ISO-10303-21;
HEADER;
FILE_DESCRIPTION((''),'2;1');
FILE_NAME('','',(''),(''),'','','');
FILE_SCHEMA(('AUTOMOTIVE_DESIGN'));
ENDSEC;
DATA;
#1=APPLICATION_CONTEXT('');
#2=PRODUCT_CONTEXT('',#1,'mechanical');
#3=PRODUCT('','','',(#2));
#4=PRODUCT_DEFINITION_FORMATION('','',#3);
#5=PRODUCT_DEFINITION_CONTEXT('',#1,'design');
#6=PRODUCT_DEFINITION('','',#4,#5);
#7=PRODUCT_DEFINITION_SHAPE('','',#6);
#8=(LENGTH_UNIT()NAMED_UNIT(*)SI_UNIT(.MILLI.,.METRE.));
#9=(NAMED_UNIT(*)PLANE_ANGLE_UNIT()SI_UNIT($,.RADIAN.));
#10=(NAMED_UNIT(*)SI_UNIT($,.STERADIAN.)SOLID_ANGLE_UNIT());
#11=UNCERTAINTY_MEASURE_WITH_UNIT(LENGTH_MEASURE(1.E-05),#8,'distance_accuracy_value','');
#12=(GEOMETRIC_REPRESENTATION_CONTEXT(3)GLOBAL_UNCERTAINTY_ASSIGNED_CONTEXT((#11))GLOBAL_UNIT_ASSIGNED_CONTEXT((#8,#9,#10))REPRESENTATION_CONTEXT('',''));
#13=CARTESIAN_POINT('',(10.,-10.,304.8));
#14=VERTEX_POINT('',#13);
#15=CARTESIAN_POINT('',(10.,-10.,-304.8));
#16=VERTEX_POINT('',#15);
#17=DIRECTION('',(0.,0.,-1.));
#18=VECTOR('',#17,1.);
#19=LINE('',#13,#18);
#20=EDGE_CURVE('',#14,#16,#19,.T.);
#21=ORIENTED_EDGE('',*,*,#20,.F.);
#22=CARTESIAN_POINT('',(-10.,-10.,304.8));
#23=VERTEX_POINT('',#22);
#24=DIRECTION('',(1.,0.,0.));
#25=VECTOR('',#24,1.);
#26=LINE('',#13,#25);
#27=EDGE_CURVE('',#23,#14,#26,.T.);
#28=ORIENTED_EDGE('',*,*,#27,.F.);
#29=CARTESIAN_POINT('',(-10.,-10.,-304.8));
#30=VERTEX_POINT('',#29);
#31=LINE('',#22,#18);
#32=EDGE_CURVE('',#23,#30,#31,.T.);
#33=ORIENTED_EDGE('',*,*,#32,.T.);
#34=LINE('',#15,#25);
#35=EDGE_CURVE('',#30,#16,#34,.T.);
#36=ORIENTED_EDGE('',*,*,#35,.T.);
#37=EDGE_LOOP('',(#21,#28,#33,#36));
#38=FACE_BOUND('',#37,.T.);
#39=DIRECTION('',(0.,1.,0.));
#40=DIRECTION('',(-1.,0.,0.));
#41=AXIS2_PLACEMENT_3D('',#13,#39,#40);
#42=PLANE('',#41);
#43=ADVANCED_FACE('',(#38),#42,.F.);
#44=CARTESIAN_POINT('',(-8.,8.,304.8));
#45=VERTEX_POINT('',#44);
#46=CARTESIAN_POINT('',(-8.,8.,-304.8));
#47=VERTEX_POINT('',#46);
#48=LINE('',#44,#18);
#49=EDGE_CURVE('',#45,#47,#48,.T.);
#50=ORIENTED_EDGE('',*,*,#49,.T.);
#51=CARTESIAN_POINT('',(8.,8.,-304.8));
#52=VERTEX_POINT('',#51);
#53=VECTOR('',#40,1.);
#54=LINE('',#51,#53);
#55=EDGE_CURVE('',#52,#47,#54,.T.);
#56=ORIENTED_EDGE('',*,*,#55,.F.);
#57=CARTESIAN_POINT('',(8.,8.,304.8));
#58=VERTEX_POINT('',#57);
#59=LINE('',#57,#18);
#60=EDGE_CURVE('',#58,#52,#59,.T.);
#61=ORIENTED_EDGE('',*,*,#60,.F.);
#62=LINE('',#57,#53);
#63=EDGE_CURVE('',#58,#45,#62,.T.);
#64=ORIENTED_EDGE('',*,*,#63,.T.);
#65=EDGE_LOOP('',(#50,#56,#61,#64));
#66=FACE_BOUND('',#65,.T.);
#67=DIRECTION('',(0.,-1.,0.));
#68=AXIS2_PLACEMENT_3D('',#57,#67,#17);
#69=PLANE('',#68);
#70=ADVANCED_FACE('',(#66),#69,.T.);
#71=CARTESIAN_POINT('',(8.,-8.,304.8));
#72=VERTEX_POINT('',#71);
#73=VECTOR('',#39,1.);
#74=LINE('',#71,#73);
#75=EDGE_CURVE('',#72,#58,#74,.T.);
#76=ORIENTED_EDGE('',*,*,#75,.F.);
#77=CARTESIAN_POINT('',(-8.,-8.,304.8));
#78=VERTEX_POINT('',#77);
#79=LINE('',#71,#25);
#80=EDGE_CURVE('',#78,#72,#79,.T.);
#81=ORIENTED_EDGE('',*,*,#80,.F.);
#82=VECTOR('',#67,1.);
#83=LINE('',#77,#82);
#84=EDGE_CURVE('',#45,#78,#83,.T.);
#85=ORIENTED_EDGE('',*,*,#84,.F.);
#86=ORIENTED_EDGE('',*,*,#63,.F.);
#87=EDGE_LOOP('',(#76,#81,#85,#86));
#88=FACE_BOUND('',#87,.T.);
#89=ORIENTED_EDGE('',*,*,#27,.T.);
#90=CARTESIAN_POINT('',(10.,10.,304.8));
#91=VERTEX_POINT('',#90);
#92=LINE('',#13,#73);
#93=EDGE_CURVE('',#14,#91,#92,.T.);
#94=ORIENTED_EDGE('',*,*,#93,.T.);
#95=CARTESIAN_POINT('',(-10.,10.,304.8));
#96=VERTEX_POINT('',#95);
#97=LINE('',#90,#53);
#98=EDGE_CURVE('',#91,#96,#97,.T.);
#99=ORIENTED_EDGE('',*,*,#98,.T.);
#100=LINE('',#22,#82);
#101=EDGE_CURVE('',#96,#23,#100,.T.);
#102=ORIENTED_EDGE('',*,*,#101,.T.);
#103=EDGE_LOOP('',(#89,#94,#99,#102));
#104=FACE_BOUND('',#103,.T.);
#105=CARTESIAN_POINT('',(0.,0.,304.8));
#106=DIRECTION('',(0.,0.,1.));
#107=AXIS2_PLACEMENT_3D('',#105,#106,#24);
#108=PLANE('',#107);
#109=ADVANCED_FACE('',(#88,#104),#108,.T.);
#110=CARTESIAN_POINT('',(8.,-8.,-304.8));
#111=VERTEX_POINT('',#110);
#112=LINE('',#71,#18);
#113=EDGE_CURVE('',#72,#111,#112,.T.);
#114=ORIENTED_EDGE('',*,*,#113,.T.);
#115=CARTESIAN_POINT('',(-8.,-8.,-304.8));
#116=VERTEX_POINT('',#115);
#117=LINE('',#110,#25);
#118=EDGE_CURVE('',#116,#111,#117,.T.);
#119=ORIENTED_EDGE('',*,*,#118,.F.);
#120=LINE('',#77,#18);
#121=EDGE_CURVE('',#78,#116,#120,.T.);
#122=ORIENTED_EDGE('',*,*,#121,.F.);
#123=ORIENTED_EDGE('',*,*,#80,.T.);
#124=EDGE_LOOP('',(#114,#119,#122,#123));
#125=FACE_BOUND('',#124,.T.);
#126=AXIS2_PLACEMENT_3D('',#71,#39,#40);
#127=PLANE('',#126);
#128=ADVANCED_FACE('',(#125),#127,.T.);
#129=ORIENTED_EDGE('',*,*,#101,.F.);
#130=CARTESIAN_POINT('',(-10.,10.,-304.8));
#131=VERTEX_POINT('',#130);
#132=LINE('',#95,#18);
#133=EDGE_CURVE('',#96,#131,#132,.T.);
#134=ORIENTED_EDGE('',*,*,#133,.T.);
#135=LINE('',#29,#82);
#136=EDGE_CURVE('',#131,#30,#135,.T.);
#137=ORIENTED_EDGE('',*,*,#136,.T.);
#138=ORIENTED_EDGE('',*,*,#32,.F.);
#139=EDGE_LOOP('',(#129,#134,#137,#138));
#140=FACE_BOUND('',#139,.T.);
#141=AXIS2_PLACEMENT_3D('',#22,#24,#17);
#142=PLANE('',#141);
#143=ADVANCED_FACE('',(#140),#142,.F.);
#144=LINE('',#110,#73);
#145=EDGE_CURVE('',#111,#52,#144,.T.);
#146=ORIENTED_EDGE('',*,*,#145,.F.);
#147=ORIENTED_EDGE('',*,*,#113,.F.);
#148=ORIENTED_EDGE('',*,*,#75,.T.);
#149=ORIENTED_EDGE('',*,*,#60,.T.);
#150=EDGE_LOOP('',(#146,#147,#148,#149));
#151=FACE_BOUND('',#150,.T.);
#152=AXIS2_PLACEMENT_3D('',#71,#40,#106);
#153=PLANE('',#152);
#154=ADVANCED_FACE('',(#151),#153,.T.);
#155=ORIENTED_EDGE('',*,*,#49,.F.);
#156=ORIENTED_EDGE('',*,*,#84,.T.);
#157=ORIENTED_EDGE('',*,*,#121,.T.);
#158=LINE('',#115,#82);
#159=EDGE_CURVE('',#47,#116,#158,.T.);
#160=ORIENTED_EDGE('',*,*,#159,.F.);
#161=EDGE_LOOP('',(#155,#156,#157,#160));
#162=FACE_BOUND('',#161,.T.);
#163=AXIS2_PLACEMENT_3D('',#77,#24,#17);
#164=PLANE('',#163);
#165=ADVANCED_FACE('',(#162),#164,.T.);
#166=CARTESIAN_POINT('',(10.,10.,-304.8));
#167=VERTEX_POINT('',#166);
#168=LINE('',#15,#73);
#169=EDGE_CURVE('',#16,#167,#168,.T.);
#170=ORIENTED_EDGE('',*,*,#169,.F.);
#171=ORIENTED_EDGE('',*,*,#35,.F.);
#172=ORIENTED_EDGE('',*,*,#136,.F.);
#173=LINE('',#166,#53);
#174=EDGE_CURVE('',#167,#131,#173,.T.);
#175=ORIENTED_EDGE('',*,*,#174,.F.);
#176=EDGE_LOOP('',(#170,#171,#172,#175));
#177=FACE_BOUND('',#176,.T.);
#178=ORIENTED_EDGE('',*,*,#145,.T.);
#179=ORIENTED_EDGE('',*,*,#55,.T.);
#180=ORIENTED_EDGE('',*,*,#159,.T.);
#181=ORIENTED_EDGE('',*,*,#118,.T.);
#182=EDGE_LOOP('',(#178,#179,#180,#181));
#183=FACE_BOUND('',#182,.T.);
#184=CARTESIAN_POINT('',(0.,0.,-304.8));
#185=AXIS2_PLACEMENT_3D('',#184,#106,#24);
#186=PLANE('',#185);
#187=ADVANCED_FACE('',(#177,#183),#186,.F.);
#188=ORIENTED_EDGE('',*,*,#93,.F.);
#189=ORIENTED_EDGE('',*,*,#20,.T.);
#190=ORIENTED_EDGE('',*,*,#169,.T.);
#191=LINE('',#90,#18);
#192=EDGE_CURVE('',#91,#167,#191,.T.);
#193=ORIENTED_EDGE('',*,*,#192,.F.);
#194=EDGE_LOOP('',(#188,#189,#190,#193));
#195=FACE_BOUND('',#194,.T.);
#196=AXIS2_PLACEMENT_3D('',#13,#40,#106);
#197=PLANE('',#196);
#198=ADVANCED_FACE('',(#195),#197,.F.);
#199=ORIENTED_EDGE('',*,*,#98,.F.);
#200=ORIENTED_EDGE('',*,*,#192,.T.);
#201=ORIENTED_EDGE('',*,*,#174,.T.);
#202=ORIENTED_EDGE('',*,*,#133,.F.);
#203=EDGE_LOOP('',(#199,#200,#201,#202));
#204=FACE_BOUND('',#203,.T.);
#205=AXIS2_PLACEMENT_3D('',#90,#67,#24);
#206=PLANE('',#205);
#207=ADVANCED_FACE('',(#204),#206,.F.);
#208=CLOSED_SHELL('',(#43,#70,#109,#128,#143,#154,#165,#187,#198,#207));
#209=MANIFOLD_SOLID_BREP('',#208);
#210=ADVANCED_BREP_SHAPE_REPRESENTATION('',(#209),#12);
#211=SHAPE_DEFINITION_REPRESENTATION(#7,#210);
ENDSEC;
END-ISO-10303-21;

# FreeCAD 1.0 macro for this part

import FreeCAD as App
import Part
import Sketcher

V = App.Vector
Q = App.Units.Quantity


def add_polygon(sketch, points):
    """Adds a closed chain of lines whose ends are joined by coincident constraints."""
    first, n = sketch.GeometryCount, len(points)
    for a, b in zip(points, points[1:] + points[:1]):
        sketch.addGeometry(Part.LineSegment(App.Vector(*a, 0), App.Vector(*b, 0)), False)
    for i in range(n):
        sketch.addConstraint(Sketcher.Constraint("Coincident", first + i, 2, first + (i + 1) % n, 1))

doc = App.newDocument("Part")
params = doc.addObject("Spreadsheet::Sheet", "Params")
for row, (alias, value) in enumerate([
    ("sketch1_width", "20 mm"),
    ("sketch1_width2", "16 mm"),
    ("pad1_length", "304.8 mm"),
    ("pad1_length2", "304.8 mm"),
], start=1):
    params.set(f"A{row}", alias)
    params.set(f"B{row}", "=" + value)
    params.setAlias(f"B{row}", alias)

body = doc.addObject("PartDesign::Body", "Body")

sketch1 = body.newObject("Sketcher::SketchObject", "Sketch")
sketch1.AttachmentSupport = (doc.getObject("XY_Plane"), [""])
sketch1.MapMode = "FlatFace"
add_polygon(sketch1, [(-10, 10), (-10, -10), (10, -10), (10, 10)])
add_polygon(sketch1, [(8, -8), (-8, -8), (-8, 8), (8, 8)])
sketch1.addConstraint([
    Sketcher.Constraint("Vertical", 0),
    Sketcher.Constraint("Horizontal", 1),
    Sketcher.Constraint("Vertical", 2),
    Sketcher.Constraint("Horizontal", 3),
    Sketcher.Constraint("Horizontal", 4),
    Sketcher.Constraint("Vertical", 5),
    Sketcher.Constraint("Horizontal", 6),
    Sketcher.Constraint("Vertical", 7),
    Sketcher.Constraint("Symmetric", 0, 2, 2, 2, -1, 1),
    Sketcher.Constraint("Symmetric", 4, 2, 6, 2, -1, 1),
    Sketcher.Constraint("Equal", 3, 0),
    Sketcher.Constraint("Equal", 6, 5),
    Sketcher.Constraint("DistanceX", 1, 1, 1, 2, Q("20 mm")),
    Sketcher.Constraint("DistanceX", 4, 2, 4, 1, Q("16 mm")),
])
sketch1.setExpression("Constraints[20]", "Params.sketch1_width")
sketch1.setExpression("Constraints[21]", "Params.sketch1_width2")
pad1 = body.newObject("PartDesign::Pad", "Pad")
pad1.Profile = sketch1
pad1.Type = "TwoLengths"
pad1.setExpression("Length", "Params.pad1_length")
pad1.setExpression("Length2", "Params.pad1_length2")

doc.recompute()
